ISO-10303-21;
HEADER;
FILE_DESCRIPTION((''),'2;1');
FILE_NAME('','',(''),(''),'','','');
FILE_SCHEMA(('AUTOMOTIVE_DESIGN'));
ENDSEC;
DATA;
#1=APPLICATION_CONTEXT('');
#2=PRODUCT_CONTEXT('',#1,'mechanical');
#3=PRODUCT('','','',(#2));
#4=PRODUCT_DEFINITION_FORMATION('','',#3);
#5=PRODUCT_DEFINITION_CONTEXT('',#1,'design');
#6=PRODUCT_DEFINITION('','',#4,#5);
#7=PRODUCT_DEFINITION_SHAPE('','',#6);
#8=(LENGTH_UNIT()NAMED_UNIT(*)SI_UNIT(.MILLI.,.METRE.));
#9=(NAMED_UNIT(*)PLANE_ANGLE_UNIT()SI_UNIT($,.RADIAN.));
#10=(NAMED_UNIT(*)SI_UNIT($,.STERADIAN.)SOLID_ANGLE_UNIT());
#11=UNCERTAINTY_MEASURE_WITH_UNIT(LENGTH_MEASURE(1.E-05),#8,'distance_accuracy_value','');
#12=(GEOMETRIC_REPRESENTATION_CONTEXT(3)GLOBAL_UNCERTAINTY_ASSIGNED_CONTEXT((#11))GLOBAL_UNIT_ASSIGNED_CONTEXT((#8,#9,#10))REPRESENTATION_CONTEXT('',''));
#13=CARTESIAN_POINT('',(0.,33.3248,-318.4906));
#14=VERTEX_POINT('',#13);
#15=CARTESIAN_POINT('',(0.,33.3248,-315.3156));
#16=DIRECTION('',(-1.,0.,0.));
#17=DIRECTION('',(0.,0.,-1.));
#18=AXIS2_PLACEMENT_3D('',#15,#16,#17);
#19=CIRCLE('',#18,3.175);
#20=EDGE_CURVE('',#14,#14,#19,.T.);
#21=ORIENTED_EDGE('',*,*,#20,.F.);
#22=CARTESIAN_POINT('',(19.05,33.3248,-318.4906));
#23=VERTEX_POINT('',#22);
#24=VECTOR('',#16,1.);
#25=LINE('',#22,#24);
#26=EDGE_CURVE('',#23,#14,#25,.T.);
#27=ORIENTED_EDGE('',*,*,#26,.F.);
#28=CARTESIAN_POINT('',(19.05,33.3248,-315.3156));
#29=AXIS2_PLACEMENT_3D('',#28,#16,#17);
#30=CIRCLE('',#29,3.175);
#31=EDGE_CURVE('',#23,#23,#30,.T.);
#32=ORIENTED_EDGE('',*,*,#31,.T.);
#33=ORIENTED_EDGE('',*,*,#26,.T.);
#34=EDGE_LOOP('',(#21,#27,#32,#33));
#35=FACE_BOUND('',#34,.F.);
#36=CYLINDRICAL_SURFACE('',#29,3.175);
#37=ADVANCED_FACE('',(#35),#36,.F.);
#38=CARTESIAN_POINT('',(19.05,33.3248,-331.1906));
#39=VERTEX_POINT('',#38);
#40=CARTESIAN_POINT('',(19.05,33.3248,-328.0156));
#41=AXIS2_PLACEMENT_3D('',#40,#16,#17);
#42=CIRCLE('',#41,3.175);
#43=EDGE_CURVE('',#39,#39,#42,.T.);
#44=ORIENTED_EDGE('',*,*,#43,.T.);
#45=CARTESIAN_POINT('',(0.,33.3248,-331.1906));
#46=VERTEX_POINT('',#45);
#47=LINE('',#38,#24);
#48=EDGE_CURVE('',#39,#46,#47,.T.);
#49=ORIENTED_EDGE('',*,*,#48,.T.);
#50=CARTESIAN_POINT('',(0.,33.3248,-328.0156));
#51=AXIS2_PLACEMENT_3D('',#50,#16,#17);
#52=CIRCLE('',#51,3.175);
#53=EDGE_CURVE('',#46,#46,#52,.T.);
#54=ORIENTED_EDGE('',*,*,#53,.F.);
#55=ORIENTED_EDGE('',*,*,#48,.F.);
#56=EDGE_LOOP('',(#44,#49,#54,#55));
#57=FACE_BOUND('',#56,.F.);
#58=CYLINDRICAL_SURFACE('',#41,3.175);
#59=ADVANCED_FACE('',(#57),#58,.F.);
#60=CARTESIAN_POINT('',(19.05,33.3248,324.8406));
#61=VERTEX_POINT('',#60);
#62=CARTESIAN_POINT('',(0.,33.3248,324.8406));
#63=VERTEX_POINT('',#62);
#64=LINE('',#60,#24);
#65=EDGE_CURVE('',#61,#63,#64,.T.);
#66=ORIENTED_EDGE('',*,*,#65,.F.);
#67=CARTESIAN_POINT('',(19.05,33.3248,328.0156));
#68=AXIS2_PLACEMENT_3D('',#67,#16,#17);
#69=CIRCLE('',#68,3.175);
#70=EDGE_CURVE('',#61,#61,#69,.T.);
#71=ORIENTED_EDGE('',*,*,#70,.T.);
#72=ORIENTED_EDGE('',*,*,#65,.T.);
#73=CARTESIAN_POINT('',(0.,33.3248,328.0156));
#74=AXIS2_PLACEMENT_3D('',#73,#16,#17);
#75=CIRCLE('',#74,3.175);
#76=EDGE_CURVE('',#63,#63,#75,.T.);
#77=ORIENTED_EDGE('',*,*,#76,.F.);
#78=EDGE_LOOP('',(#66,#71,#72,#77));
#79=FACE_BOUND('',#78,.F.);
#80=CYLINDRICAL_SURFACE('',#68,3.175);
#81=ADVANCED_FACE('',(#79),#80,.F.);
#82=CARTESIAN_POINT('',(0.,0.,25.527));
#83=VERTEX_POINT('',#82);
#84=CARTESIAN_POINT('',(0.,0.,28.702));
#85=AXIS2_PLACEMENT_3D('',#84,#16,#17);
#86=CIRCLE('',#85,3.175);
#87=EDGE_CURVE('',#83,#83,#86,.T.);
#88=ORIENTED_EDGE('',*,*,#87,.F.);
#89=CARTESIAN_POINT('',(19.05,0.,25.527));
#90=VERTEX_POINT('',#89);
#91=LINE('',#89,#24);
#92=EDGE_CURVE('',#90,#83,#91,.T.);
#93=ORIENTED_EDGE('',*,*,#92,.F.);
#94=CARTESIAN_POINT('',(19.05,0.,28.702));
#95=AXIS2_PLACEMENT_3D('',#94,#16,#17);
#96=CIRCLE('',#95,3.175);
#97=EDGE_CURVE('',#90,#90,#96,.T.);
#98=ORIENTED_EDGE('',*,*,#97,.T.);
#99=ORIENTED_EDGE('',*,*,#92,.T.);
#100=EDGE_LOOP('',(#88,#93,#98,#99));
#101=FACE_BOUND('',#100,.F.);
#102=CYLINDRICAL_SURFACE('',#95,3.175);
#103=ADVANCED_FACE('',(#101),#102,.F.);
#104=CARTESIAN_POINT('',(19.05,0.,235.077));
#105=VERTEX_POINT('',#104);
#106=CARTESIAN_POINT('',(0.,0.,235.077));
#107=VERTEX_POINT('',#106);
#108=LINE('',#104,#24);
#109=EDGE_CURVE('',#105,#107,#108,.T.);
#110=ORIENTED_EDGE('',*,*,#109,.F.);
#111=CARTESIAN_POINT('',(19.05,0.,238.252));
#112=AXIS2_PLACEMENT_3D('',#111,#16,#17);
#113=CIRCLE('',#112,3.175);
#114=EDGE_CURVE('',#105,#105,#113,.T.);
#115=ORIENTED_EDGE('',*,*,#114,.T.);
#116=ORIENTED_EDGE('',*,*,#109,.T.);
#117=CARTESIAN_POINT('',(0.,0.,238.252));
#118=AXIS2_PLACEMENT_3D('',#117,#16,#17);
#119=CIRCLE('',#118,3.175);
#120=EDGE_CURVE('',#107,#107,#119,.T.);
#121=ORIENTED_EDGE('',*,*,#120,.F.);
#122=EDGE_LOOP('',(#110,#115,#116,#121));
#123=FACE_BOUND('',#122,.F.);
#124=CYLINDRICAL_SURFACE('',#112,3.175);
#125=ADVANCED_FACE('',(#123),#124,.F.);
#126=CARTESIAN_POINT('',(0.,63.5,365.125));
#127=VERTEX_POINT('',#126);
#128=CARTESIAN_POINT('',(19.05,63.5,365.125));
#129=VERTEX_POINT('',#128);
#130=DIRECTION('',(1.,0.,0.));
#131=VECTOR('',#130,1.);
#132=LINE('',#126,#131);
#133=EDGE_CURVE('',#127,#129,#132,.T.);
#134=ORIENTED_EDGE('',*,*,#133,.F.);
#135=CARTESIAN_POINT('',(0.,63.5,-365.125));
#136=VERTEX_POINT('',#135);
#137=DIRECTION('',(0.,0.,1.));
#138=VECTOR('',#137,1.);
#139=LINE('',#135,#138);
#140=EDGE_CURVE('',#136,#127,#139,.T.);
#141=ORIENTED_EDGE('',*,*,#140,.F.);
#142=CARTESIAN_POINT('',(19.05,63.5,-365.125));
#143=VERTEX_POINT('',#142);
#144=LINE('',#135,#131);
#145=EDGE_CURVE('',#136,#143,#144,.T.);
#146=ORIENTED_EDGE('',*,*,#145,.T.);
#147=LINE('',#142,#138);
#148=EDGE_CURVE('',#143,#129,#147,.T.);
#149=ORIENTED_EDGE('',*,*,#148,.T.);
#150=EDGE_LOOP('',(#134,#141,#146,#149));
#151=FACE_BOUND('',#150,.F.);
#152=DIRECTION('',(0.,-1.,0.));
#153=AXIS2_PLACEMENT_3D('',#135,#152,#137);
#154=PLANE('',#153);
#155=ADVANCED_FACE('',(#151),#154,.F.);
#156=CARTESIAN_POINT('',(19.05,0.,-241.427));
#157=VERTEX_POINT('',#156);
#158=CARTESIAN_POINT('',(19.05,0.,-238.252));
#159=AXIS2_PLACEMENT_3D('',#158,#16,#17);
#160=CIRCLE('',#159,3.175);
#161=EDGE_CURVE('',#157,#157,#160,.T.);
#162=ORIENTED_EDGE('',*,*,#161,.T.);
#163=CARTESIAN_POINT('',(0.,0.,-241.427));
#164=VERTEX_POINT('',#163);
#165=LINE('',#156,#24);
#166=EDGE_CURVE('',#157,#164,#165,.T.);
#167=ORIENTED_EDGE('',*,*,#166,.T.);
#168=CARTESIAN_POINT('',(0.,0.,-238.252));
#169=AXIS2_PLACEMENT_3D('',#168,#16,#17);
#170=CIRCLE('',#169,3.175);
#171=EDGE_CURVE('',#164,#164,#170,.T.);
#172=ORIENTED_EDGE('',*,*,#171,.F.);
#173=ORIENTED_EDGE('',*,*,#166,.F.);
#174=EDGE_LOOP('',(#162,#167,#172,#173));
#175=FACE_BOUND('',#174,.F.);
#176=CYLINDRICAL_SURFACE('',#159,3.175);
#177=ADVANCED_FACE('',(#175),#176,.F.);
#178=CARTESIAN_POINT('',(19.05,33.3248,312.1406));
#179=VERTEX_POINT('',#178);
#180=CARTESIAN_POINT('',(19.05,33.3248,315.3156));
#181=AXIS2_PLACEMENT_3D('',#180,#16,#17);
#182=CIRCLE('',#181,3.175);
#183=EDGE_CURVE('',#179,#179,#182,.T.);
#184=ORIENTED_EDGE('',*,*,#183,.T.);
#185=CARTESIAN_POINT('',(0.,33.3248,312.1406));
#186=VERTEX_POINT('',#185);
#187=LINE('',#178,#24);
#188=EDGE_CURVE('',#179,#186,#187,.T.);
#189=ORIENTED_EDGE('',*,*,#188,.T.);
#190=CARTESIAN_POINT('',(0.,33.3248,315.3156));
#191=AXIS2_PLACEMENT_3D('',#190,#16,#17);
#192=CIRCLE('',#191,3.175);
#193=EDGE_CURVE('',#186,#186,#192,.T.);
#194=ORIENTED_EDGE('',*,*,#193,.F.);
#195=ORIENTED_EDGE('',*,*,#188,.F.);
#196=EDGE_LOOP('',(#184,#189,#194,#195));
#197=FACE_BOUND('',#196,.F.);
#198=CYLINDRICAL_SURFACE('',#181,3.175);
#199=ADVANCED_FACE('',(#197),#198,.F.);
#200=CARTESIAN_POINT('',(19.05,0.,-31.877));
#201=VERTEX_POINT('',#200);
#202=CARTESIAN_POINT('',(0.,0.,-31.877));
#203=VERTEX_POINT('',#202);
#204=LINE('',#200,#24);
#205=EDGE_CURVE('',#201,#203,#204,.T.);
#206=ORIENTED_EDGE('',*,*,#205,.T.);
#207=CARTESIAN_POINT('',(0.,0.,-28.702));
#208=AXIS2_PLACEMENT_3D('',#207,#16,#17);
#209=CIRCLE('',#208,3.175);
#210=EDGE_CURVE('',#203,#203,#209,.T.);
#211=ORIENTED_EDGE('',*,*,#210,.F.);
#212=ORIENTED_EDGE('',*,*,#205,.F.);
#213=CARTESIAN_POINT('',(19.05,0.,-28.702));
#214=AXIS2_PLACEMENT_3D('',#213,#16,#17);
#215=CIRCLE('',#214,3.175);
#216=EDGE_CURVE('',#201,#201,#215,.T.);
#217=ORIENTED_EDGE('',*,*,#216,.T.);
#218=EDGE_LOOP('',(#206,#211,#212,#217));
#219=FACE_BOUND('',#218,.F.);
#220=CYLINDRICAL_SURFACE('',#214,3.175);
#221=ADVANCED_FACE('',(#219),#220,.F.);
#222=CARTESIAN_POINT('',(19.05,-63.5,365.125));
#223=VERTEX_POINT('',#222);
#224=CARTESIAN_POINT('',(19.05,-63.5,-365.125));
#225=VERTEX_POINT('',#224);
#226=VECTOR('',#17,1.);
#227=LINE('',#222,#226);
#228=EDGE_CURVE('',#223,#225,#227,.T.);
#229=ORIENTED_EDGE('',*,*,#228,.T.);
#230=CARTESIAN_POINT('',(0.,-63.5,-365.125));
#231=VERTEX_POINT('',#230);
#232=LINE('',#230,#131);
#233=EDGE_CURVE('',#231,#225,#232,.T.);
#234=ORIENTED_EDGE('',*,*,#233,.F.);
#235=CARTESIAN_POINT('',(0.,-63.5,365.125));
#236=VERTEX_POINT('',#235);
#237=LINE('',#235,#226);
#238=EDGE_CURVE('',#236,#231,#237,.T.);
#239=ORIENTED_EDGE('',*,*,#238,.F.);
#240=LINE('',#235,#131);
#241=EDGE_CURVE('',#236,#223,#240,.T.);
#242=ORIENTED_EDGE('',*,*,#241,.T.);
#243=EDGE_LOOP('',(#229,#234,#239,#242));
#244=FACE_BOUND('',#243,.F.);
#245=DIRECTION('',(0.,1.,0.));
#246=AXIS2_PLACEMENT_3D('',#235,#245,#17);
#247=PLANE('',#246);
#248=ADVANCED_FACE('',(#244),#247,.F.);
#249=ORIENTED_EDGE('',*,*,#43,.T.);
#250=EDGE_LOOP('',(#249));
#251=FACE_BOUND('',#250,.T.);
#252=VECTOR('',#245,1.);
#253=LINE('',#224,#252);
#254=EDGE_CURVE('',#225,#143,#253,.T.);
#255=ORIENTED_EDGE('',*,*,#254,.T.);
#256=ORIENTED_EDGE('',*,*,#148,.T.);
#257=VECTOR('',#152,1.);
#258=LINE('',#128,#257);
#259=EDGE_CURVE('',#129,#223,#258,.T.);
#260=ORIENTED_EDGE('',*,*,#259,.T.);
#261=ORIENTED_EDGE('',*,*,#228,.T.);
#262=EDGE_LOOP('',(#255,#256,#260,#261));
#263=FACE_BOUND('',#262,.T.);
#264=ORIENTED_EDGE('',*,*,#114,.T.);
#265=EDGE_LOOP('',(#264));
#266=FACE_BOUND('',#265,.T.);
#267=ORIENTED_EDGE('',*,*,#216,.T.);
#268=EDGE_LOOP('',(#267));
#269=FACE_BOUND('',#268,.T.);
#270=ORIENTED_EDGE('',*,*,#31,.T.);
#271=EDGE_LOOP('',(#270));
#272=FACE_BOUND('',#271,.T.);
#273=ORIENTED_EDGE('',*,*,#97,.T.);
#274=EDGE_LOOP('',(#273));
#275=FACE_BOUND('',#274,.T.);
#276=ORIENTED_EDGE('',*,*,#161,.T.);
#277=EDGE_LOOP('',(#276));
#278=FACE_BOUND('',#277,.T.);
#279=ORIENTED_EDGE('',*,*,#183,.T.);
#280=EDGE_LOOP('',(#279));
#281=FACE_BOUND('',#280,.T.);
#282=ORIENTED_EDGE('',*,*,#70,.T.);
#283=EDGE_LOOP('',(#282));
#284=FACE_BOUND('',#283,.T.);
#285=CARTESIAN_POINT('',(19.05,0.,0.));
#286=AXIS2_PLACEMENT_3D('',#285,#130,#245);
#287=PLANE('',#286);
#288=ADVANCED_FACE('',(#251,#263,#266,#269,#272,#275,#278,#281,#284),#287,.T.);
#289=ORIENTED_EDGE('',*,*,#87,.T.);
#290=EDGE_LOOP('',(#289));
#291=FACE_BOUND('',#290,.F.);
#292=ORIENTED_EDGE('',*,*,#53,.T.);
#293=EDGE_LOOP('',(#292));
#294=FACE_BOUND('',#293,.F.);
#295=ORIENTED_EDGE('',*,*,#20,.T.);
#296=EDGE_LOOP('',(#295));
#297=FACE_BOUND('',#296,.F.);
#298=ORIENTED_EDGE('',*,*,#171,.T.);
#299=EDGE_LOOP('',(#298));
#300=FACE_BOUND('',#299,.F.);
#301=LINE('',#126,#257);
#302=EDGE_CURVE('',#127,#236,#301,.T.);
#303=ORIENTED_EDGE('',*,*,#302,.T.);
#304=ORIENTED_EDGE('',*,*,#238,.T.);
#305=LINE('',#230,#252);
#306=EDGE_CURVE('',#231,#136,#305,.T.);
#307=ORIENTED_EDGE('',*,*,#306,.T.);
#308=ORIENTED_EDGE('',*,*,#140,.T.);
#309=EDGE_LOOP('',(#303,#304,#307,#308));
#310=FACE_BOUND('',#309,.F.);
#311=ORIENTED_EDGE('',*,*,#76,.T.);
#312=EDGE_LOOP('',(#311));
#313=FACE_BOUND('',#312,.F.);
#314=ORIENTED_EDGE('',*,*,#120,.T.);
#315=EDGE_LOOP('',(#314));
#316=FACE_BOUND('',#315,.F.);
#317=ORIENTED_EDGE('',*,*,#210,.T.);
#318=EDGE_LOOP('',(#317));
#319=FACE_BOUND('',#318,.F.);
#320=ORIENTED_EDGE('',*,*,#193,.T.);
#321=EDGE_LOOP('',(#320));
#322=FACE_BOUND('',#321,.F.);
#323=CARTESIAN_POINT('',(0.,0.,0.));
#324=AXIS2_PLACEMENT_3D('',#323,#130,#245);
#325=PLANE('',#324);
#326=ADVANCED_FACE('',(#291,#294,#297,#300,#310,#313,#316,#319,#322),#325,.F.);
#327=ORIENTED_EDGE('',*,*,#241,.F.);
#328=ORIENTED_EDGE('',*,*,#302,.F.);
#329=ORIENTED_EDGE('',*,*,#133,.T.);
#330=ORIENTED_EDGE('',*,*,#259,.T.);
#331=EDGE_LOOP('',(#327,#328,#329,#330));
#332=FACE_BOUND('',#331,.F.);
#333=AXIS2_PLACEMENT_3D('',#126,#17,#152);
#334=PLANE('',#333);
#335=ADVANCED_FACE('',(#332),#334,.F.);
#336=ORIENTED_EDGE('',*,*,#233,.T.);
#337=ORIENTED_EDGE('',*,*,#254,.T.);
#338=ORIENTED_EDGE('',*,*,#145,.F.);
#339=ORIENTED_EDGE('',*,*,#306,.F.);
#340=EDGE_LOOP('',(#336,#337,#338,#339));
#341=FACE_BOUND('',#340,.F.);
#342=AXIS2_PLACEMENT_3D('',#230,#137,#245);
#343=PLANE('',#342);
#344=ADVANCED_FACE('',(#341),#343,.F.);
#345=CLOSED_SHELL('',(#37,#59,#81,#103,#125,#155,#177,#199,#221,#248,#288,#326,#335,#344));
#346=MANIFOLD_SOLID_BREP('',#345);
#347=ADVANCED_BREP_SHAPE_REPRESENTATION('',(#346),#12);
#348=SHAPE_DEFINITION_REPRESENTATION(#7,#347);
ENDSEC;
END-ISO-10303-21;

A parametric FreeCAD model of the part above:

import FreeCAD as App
import Part
import Sketcher
Q = App.Units.Quantity

doc = App.newDocument("Part")
params = doc.addObject("Spreadsheet::Sheet", "Params")
for row, (alias, value) in enumerate([
    ("sketch1_width", "5 in"),
    ("sketch1_height", "28.75 in"),
    ("pad1_length", "0.75 in"),
    ("sketch2_diameter", "0.25 in"),
    ("hole_diameter", "0.25 in"),
    ("sketch3_diameter", "0.25 in"),
    ("hole2_diameter", "0.25 in"),
], start=1):
    params.set(f"A{row}", alias)
    params.set(f"B{row}", "=" + value)
    params.setAlias(f"B{row}", alias)

body = doc.addObject("PartDesign::Body", "Body")

# Sketch on YZ plane
sketch1 = body.newObject("Sketcher::SketchObject", "Sketch")
sketch1.AttachmentSupport = (doc.getObject("YZ_Plane"), [""])
sketch1.MapMode = "FlatFace"
sketch1.addGeometry([
    Part.LineSegment(App.Vector(-63.5, 365.125, 0), App.Vector(-63.5, -365.125, 0)),
    Part.LineSegment(App.Vector(-63.5, -365.125, 0), App.Vector(63.5, -365.125, 0)),
    Part.LineSegment(App.Vector(63.5, -365.125, 0), App.Vector(63.5, 365.125, 0)),
    Part.LineSegment(App.Vector(63.5, 365.125, 0), App.Vector(-63.5, 365.125, 0)),
], False)
sketch1.addConstraint([
    Sketcher.Constraint("Coincident", 0, 2, 1, 1),
    Sketcher.Constraint("Coincident", 1, 2, 2, 1),
    Sketcher.Constraint("Coincident", 2, 2, 3, 1),
    Sketcher.Constraint("Coincident", 3, 2, 0, 1),
    Sketcher.Constraint("Vertical", 0),
    Sketcher.Constraint("Horizontal", 1),
    Sketcher.Constraint("Vertical", 2),
    Sketcher.Constraint("Horizontal", 3),
    Sketcher.Constraint("Symmetric", 0, 2, 2, 2, -1, 1),
    Sketcher.Constraint("DistanceX", 1, 1, 1, 2, Q("5 in")),
    Sketcher.Constraint("DistanceY", 0, 2, 0, 1, Q("28.75 in")),
])
sketch1.setExpression("Constraints[9]", "Params.sketch1_width")
sketch1.setExpression("Constraints[10]", "Params.sketch1_height")
pad1 = body.newObject("PartDesign::Pad", "Pad")
pad1.Profile = sketch1
pad1.setExpression("Length", "Params.pad1_length")

# Sketch on YZ plane
sketch2 = body.newObject("Sketcher::SketchObject", "Sketch001")
sketch2.AttachmentSupport = (doc.getObject("YZ_Plane"), [""])
sketch2.MapMode = "FlatFace"
sketch2.AttachmentOffset = App.Placement(App.Vector(0, 0, 0.75 * 25.4), App.Rotation())
sketch2.addGeometry([
    Part.Circle(App.Vector(33.3248, 328.0156, 0), App.Vector(0, 0, 1), 3.175),
    Part.Circle(App.Vector(33.3248, 315.3156, 0), App.Vector(0, 0, 1), 3.175),
    Part.Circle(App.Vector(33.3248, -328.0156, 0), App.Vector(0, 0, 1), 3.175),
    Part.Circle(App.Vector(33.3248, -315.3156, 0), App.Vector(0, 0, 1), 3.175),
], False)
sketch2.addConstraint([
    Sketcher.Constraint("Equal", 0, 1),
    Sketcher.Constraint("Equal", 1, 2),
    Sketcher.Constraint("Equal", 2, 3),
    Sketcher.Constraint("Symmetric", 0, 3, 2, 3, -1),
    Sketcher.Constraint("Symmetric", 1, 3, 3, 3, -1),
    Sketcher.Constraint("Vertical", 0, 3, 1, 3),
    Sketcher.Constraint("Diameter", 0, Q("0.25 in")),
    Sketcher.Constraint("DistanceY", 1, 3, 0, 3, Q("0.5 in")),
    Sketcher.Constraint("DistanceX", -1, 1, 0, 3, Q("1.312 in")),
    Sketcher.Constraint("DistanceY", -1, 1, 0, 3, Q("12.914 in")),
])
sketch2.setExpression("Constraints[6]", "Params.sketch2_diameter")
doc.recompute()
hole = body.newObject("PartDesign::Hole", "Hole")
hole.Profile = sketch2
hole.ThreadType = "None"
hole.setExpression("Diameter", "Params.hole_diameter")
hole.DepthType = "ThroughAll"

# Sketch on YZ plane
sketch3 = body.newObject("Sketcher::SketchObject", "Sketch002")
sketch3.AttachmentSupport = (doc.getObject("YZ_Plane"), [""])
sketch3.MapMode = "FlatFace"
sketch3.AttachmentOffset = App.Placement(App.Vector(0, 0, 0.75 * 25.4), App.Rotation())
sketch3.addGeometry([
    Part.Circle(App.Vector(0, 238.252, 0), App.Vector(0, 0, 1), 3.175),
    Part.Circle(App.Vector(0, 28.702, 0), App.Vector(0, 0, 1), 3.175),
    Part.Circle(App.Vector(0, -238.252, 0), App.Vector(0, 0, 1), 3.175),
    Part.Circle(App.Vector(0, -28.702, 0), App.Vector(0, 0, 1), 3.175),
], False)
sketch3.addConstraint([
    Sketcher.Constraint("Equal", 0, 1),
    Sketcher.Constraint("Equal", 1, 2),
    Sketcher.Constraint("Equal", 2, 3),
    Sketcher.Constraint("Symmetric", 0, 3, 2, 3, -1, 1),
    Sketcher.Constraint("Symmetric", 1, 3, 3, 3, -1, 1),
    Sketcher.Constraint("PointOnObject", 0, 3, -2),
    Sketcher.Constraint("PointOnObject", 1, 3, -2),
    Sketcher.Constraint("Diameter", 0, Q("0.25 in")),
    Sketcher.Constraint("DistanceY", -1, 1, 0, 3, Q("9.38 in")),
    Sketcher.Constraint("DistanceY", -1, 1, 1, 3, Q("1.13 in")),
])
sketch3.setExpression("Constraints[7]", "Params.sketch3_diameter")
doc.recompute()
hole2 = body.newObject("PartDesign::Hole", "Hole001")
hole2.Profile = sketch3
hole2.ThreadType = "None"
hole2.setExpression("Diameter", "Params.hole2_diameter")
hole2.DepthType = "ThroughAll"

doc.recompute()
